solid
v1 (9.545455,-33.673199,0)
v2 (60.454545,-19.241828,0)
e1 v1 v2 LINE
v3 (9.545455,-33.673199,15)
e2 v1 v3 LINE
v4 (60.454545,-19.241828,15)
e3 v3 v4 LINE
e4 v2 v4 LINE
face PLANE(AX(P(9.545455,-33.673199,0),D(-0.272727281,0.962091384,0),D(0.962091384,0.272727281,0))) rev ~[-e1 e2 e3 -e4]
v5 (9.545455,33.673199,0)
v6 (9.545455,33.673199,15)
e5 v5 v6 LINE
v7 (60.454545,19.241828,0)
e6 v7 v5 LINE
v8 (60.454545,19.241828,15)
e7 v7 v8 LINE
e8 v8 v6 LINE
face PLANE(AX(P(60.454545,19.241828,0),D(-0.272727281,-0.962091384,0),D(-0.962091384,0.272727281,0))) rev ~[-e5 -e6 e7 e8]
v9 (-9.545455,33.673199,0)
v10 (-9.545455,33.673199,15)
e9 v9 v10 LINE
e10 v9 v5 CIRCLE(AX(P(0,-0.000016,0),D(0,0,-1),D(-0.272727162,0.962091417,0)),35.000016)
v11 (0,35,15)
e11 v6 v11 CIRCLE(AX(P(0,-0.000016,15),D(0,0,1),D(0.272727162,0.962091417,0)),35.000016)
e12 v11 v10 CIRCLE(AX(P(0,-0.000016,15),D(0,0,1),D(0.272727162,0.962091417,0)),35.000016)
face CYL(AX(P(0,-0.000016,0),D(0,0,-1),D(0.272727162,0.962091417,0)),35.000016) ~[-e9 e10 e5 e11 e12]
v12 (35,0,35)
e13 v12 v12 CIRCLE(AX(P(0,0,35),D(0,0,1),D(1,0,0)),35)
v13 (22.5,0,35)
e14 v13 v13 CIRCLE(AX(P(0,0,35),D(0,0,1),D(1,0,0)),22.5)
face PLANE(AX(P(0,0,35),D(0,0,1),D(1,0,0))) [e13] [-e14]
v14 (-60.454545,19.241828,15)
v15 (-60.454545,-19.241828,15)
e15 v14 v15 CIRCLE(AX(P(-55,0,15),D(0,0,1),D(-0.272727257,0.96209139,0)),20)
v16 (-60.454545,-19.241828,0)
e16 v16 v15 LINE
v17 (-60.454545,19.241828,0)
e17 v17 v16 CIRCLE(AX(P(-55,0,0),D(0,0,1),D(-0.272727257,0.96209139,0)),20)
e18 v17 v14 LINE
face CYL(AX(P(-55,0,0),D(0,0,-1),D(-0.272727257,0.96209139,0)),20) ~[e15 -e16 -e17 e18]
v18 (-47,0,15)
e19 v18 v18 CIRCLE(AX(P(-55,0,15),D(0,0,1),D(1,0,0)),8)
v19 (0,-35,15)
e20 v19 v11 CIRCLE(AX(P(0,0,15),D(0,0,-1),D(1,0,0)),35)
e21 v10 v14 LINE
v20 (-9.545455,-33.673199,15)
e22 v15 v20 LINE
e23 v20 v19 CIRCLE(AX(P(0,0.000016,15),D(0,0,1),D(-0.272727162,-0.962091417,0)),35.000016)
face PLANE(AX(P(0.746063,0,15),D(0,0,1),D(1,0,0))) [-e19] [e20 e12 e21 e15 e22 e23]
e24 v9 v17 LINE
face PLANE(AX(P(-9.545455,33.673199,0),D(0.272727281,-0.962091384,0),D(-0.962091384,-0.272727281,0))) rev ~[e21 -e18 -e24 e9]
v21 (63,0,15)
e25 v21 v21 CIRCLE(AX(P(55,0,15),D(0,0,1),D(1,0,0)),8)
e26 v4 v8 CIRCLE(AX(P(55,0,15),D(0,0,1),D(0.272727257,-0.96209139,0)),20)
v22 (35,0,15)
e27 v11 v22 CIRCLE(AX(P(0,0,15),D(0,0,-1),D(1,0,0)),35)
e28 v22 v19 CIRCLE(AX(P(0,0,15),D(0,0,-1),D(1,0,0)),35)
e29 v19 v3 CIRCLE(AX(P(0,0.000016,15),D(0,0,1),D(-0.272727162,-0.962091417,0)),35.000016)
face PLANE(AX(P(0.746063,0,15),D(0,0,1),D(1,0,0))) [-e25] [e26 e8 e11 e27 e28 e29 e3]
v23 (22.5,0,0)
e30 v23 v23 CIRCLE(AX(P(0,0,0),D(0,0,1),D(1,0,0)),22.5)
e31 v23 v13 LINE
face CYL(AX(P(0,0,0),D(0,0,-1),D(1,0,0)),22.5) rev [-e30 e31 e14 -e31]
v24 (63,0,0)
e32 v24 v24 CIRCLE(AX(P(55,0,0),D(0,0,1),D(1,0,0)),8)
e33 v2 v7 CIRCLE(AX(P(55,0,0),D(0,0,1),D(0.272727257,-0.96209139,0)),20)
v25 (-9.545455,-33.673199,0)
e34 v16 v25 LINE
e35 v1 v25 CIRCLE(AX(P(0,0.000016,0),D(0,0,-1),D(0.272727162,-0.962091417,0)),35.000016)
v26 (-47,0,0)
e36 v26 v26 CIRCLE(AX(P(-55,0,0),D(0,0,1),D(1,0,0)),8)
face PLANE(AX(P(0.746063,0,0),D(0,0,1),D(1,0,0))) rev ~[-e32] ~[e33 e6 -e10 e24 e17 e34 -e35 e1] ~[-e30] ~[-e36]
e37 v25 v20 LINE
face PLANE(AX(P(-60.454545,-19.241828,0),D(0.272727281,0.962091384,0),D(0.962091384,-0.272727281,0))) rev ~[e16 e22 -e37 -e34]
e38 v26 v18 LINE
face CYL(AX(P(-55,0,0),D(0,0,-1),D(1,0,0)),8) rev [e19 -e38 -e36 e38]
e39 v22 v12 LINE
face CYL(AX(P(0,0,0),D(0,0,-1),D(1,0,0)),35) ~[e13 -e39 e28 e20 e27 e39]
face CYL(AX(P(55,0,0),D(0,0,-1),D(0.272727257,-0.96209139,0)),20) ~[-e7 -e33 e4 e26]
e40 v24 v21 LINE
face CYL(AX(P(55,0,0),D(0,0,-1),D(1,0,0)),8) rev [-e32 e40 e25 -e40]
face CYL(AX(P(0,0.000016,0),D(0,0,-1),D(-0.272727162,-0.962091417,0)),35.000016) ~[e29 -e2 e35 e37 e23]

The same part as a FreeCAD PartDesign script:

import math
import FreeCAD as App
import Part
import Sketcher

V = App.Vector
Q = App.Units.Quantity

doc = App.newDocument("Part")
body = doc.addObject("PartDesign::Body", "Body")

# Sketch on XY plane
sketch1 = body.newObject("Sketcher::SketchObject", "Sketch")
sketch1.AttachmentSupport = (doc.getObject("XY_Plane"), [""])
sketch1.MapMode = "FlatFace"
sketch1.addGeometry([
    Part.ArcOfCircle(Part.Circle(V(0, 0.000016, 0), V(0, 0, 1), 35.000016), math.radians(-105.826614), math.radians(-74.173386)),  # 0
    Part.LineSegment(V(9.545455, -33.673199, 0), V(60.454545, -19.241828, 0)),  # 1
    Part.ArcOfCircle(Part.Circle(V(55, 0, 0), V(0, 0, 1), 20), math.radians(-74.173381), math.radians(74.173381)),  # 2
    Part.LineSegment(V(60.454545, 19.241828, 0), V(9.545455, 33.673199, 0)),  # 3
    Part.ArcOfCircle(Part.Circle(V(0, -0.000016, 0), V(0, 0, 1), 35.000016), math.radians(74.173386), math.radians(105.826614)),  # 4
    Part.LineSegment(V(-9.545455, 33.673199, 0), V(-60.454545, 19.241828, 0)),  # 5
    Part.ArcOfCircle(Part.Circle(V(-55, 0, 0), V(0, 0, 1), 20), math.radians(105.826619), math.radians(254.173381)),  # 6
    Part.LineSegment(V(-60.454545, -19.241828, 0), V(-9.545455, -33.673199, 0)),  # 7
    Part.Circle(V(-55, 0, 0), V(0, 0, 1), 8),  # 8
    Part.Circle(V(0, 0, 0), V(0, 0, 1), 22.5),  # 9
    Part.Circle(V(55, 0, 0), V(0, 0, 1), 8),  # 10
], False)
sketch1.addConstraint([
    Sketcher.Constraint("Tangent", 0, 2, 1, 1),
    Sketcher.Constraint("Tangent", 1, 2, 2, 1),
    Sketcher.Constraint("Tangent", 2, 2, 3, 1),
    Sketcher.Constraint("Tangent", 3, 2, 4, 1),
    Sketcher.Constraint("Tangent", 4, 2, 5, 1),
    Sketcher.Constraint("Tangent", 5, 2, 6, 1),
    Sketcher.Constraint("Tangent", 6, 2, 7, 1),
    Sketcher.Constraint("Tangent", 7, 2, 0, 1),
    Sketcher.Constraint("Coincident", 9, 3, -1, 1),
    Sketcher.Constraint("Coincident", 8, 3, 6, 3),
    Sketcher.Constraint("Coincident", 10, 3, 2, 3),
    Sketcher.Constraint("Equal", 0, 4),
    Sketcher.Constraint("Equal", 2, 6),
    Sketcher.Constraint("Equal", 8, 10),
    Sketcher.Constraint("Symmetric", 0, 3, 4, 3, -1, 1),
    Sketcher.Constraint("Symmetric", 2, 3, 6, 3, -1, 1),
    Sketcher.Constraint("Symmetric", 3, 2, 4, 2, -2),
    Sketcher.Constraint("Diameter", 8, Q("16 mm")),
    Sketcher.Constraint("Diameter", 9, Q("45 mm")),
    Sketcher.Constraint("Radius", 2, Q("20 mm")),
    Sketcher.Constraint("DistanceX", -1, 1, 2, 3, Q("55 mm")),
    Sketcher.Constraint("Radius", 0, Q("35.000016 mm")),
    Sketcher.Constraint("DistanceY", 0, 2, -1, 1, Q("33.673199 mm")),
])
pad1 = body.newObject("PartDesign::Pad", "Pad")
pad1.Profile = sketch1
pad1.Length = 15

# Sketch on XY plane
sketch2 = body.newObject("Sketcher::SketchObject", "Sketch001")
sketch2.AttachmentSupport = (doc.getObject("XY_Plane"), [""])
sketch2.MapMode = "FlatFace"
sketch2.addGeometry([
    Part.Circle(V(0, 0, 0), V(0, 0, 1), 35),
    Part.Circle(V(0, 0, 0), V(0, 0, 1), 22),
], False)
sketch2.addConstraint([
    Sketcher.Constraint("Coincident", 0, 3, -1, 1),
    Sketcher.Constraint("Coincident", 1, 3, -1, 1),
    Sketcher.Constraint("Diameter", 0, Q("70 mm")),
    Sketcher.Constraint("Diameter", 1, Q("45 mm")),
])
pad2 = body.newObject("PartDesign::Pad", "Pad001")
pad2.Profile = sketch2
pad2.Length = 35

doc.recompute()
